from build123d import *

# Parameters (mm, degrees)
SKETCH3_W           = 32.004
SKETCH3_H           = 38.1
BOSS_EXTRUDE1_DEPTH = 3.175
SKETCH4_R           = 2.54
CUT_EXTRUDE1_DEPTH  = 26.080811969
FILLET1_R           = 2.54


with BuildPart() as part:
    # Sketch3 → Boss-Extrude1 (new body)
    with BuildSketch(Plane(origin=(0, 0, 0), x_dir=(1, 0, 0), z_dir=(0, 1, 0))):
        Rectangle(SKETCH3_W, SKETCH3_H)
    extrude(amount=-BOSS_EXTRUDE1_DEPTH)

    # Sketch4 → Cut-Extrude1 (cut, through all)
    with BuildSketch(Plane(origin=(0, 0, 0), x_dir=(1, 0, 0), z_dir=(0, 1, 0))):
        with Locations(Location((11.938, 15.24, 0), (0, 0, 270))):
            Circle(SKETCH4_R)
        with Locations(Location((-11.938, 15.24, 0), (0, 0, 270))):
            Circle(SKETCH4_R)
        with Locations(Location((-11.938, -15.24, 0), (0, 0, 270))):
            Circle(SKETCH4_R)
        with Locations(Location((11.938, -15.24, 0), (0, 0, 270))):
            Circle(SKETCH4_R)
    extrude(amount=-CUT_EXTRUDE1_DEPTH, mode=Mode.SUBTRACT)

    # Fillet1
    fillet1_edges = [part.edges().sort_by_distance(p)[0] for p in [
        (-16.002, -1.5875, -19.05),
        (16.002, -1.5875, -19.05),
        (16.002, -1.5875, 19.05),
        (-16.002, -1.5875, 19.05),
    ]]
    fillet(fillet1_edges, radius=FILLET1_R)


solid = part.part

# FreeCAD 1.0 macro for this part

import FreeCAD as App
import Part
import Sketcher
from FreeCAD import Vector
Q = App.Units.Quantity


def edges_at(feature, points):
    """Names of the edges that pass closest to the given points."""
    edges = feature.Shape.Edges
    near = lambda p: min(range(len(edges)), key=lambda i: edges[i].distToShape(Part.Vertex(*p))[0])
    return sorted({f"Edge{near(p) + 1}" for p in points})

doc = App.newDocument("Part")
body = doc.addObject("PartDesign::Body", "Body")

# Sketch on XZ plane
sketch1 = body.newObject("Sketcher::SketchObject", "Sketch")
sketch1.AttachmentSupport = (doc.getObject("XZ_Plane"), [""])
sketch1.MapMode = "FlatFace"
sketch1.addGeometry([
    Part.LineSegment(Vector(-16, -19, 0), Vector(-16, 19, 0)),
    Part.LineSegment(Vector(-16, 19, 0), Vector(16, 19, 0)),
    Part.LineSegment(Vector(16, 19, 0), Vector(16, -19, 0)),
    Part.LineSegment(Vector(16, -19, 0), Vector(-16, -19, 0)),
], False)
sketch1.addConstraint([
    Sketcher.Constraint("Coincident", 0, 2, 1, 1),
    Sketcher.Constraint("Coincident", 1, 2, 2, 1),
    Sketcher.Constraint("Coincident", 2, 2, 3, 1),
    Sketcher.Constraint("Coincident", 3, 2, 0, 1),
    Sketcher.Constraint("Vertical", 0),
    Sketcher.Constraint("Horizontal", 1),
    Sketcher.Constraint("Vertical", 2),
    Sketcher.Constraint("Horizontal", 3),
    Sketcher.Constraint("Symmetric", 0, 2, 2, 2, -1, 1),
    Sketcher.Constraint("DistanceY", 0, 1, 0, 2, Q("1.5 in")),
    Sketcher.Constraint("DistanceX", 1, 1, 1, 2, Q("1.26 in")),
])
pad1 = body.newObject("PartDesign::Pad", "Pad")
pad1.Profile = sketch1
pad1.Length = Q("0.125 in")

# Sketch on XZ plane
sketch2 = body.newObject("Sketcher::SketchObject", "Sketch001")
sketch2.AttachmentSupport = (doc.getObject("XZ_Plane"), [""])
sketch2.MapMode = "FlatFace"
sketch2.addGeometry([
    Part.Circle(Vector(11.9, -15.2, 0), Vector(0, 0, 1), 2.5),
    Part.Circle(Vector(-11.9, -15.2, 0), Vector(0, 0, 1), 2.5),
    Part.Circle(Vector(-11.9, 15.2, 0), Vector(0, 0, 1), 2.5),
    Part.Circle(Vector(11.9, 15.2, 0), Vector(0, 0, 1), 2.5),
], False)
sketch2.addConstraint([
    Sketcher.Constraint("Equal", 0, 1),
    Sketcher.Constraint("Equal", 1, 2),
    Sketcher.Constraint("Equal", 2, 3),
    Sketcher.Constraint("Symmetric", 0, 3, 2, 3, -1, 1),
    Sketcher.Constraint("Symmetric", 1, 3, 3, 3, -1, 1),
    Sketcher.Constraint("Symmetric", 0, 3, 1, 3, -2),
    Sketcher.Constraint("Diameter", 0, Q("0.2 in")),
    Sketcher.Constraint("DistanceY", 0, 3, -1, 1, Q("0.6 in")),
    Sketcher.Constraint("DistanceX", -1, 1, 0, 3, Q("0.47 in")),
])
pocket1 = body.newObject("PartDesign::Pocket", "Pocket")
pocket1.Profile = sketch2
pocket1.Type = "ThroughAll"
pocket1.Reversed = True
doc.recompute()

fillet = body.newObject("PartDesign::Fillet", "Fillet")
fillet.Base = (pocket1, edges_at(pocket1, [
    (-16.002, -1.587, -19.05),
    (16.002, -1.587, -19.05),
    (16.002, -1.587, 19.05),
    (-16.002, -1.587, 19.05),
]))
fillet.Radius = Q("0.1 in")

doc.recompute()
